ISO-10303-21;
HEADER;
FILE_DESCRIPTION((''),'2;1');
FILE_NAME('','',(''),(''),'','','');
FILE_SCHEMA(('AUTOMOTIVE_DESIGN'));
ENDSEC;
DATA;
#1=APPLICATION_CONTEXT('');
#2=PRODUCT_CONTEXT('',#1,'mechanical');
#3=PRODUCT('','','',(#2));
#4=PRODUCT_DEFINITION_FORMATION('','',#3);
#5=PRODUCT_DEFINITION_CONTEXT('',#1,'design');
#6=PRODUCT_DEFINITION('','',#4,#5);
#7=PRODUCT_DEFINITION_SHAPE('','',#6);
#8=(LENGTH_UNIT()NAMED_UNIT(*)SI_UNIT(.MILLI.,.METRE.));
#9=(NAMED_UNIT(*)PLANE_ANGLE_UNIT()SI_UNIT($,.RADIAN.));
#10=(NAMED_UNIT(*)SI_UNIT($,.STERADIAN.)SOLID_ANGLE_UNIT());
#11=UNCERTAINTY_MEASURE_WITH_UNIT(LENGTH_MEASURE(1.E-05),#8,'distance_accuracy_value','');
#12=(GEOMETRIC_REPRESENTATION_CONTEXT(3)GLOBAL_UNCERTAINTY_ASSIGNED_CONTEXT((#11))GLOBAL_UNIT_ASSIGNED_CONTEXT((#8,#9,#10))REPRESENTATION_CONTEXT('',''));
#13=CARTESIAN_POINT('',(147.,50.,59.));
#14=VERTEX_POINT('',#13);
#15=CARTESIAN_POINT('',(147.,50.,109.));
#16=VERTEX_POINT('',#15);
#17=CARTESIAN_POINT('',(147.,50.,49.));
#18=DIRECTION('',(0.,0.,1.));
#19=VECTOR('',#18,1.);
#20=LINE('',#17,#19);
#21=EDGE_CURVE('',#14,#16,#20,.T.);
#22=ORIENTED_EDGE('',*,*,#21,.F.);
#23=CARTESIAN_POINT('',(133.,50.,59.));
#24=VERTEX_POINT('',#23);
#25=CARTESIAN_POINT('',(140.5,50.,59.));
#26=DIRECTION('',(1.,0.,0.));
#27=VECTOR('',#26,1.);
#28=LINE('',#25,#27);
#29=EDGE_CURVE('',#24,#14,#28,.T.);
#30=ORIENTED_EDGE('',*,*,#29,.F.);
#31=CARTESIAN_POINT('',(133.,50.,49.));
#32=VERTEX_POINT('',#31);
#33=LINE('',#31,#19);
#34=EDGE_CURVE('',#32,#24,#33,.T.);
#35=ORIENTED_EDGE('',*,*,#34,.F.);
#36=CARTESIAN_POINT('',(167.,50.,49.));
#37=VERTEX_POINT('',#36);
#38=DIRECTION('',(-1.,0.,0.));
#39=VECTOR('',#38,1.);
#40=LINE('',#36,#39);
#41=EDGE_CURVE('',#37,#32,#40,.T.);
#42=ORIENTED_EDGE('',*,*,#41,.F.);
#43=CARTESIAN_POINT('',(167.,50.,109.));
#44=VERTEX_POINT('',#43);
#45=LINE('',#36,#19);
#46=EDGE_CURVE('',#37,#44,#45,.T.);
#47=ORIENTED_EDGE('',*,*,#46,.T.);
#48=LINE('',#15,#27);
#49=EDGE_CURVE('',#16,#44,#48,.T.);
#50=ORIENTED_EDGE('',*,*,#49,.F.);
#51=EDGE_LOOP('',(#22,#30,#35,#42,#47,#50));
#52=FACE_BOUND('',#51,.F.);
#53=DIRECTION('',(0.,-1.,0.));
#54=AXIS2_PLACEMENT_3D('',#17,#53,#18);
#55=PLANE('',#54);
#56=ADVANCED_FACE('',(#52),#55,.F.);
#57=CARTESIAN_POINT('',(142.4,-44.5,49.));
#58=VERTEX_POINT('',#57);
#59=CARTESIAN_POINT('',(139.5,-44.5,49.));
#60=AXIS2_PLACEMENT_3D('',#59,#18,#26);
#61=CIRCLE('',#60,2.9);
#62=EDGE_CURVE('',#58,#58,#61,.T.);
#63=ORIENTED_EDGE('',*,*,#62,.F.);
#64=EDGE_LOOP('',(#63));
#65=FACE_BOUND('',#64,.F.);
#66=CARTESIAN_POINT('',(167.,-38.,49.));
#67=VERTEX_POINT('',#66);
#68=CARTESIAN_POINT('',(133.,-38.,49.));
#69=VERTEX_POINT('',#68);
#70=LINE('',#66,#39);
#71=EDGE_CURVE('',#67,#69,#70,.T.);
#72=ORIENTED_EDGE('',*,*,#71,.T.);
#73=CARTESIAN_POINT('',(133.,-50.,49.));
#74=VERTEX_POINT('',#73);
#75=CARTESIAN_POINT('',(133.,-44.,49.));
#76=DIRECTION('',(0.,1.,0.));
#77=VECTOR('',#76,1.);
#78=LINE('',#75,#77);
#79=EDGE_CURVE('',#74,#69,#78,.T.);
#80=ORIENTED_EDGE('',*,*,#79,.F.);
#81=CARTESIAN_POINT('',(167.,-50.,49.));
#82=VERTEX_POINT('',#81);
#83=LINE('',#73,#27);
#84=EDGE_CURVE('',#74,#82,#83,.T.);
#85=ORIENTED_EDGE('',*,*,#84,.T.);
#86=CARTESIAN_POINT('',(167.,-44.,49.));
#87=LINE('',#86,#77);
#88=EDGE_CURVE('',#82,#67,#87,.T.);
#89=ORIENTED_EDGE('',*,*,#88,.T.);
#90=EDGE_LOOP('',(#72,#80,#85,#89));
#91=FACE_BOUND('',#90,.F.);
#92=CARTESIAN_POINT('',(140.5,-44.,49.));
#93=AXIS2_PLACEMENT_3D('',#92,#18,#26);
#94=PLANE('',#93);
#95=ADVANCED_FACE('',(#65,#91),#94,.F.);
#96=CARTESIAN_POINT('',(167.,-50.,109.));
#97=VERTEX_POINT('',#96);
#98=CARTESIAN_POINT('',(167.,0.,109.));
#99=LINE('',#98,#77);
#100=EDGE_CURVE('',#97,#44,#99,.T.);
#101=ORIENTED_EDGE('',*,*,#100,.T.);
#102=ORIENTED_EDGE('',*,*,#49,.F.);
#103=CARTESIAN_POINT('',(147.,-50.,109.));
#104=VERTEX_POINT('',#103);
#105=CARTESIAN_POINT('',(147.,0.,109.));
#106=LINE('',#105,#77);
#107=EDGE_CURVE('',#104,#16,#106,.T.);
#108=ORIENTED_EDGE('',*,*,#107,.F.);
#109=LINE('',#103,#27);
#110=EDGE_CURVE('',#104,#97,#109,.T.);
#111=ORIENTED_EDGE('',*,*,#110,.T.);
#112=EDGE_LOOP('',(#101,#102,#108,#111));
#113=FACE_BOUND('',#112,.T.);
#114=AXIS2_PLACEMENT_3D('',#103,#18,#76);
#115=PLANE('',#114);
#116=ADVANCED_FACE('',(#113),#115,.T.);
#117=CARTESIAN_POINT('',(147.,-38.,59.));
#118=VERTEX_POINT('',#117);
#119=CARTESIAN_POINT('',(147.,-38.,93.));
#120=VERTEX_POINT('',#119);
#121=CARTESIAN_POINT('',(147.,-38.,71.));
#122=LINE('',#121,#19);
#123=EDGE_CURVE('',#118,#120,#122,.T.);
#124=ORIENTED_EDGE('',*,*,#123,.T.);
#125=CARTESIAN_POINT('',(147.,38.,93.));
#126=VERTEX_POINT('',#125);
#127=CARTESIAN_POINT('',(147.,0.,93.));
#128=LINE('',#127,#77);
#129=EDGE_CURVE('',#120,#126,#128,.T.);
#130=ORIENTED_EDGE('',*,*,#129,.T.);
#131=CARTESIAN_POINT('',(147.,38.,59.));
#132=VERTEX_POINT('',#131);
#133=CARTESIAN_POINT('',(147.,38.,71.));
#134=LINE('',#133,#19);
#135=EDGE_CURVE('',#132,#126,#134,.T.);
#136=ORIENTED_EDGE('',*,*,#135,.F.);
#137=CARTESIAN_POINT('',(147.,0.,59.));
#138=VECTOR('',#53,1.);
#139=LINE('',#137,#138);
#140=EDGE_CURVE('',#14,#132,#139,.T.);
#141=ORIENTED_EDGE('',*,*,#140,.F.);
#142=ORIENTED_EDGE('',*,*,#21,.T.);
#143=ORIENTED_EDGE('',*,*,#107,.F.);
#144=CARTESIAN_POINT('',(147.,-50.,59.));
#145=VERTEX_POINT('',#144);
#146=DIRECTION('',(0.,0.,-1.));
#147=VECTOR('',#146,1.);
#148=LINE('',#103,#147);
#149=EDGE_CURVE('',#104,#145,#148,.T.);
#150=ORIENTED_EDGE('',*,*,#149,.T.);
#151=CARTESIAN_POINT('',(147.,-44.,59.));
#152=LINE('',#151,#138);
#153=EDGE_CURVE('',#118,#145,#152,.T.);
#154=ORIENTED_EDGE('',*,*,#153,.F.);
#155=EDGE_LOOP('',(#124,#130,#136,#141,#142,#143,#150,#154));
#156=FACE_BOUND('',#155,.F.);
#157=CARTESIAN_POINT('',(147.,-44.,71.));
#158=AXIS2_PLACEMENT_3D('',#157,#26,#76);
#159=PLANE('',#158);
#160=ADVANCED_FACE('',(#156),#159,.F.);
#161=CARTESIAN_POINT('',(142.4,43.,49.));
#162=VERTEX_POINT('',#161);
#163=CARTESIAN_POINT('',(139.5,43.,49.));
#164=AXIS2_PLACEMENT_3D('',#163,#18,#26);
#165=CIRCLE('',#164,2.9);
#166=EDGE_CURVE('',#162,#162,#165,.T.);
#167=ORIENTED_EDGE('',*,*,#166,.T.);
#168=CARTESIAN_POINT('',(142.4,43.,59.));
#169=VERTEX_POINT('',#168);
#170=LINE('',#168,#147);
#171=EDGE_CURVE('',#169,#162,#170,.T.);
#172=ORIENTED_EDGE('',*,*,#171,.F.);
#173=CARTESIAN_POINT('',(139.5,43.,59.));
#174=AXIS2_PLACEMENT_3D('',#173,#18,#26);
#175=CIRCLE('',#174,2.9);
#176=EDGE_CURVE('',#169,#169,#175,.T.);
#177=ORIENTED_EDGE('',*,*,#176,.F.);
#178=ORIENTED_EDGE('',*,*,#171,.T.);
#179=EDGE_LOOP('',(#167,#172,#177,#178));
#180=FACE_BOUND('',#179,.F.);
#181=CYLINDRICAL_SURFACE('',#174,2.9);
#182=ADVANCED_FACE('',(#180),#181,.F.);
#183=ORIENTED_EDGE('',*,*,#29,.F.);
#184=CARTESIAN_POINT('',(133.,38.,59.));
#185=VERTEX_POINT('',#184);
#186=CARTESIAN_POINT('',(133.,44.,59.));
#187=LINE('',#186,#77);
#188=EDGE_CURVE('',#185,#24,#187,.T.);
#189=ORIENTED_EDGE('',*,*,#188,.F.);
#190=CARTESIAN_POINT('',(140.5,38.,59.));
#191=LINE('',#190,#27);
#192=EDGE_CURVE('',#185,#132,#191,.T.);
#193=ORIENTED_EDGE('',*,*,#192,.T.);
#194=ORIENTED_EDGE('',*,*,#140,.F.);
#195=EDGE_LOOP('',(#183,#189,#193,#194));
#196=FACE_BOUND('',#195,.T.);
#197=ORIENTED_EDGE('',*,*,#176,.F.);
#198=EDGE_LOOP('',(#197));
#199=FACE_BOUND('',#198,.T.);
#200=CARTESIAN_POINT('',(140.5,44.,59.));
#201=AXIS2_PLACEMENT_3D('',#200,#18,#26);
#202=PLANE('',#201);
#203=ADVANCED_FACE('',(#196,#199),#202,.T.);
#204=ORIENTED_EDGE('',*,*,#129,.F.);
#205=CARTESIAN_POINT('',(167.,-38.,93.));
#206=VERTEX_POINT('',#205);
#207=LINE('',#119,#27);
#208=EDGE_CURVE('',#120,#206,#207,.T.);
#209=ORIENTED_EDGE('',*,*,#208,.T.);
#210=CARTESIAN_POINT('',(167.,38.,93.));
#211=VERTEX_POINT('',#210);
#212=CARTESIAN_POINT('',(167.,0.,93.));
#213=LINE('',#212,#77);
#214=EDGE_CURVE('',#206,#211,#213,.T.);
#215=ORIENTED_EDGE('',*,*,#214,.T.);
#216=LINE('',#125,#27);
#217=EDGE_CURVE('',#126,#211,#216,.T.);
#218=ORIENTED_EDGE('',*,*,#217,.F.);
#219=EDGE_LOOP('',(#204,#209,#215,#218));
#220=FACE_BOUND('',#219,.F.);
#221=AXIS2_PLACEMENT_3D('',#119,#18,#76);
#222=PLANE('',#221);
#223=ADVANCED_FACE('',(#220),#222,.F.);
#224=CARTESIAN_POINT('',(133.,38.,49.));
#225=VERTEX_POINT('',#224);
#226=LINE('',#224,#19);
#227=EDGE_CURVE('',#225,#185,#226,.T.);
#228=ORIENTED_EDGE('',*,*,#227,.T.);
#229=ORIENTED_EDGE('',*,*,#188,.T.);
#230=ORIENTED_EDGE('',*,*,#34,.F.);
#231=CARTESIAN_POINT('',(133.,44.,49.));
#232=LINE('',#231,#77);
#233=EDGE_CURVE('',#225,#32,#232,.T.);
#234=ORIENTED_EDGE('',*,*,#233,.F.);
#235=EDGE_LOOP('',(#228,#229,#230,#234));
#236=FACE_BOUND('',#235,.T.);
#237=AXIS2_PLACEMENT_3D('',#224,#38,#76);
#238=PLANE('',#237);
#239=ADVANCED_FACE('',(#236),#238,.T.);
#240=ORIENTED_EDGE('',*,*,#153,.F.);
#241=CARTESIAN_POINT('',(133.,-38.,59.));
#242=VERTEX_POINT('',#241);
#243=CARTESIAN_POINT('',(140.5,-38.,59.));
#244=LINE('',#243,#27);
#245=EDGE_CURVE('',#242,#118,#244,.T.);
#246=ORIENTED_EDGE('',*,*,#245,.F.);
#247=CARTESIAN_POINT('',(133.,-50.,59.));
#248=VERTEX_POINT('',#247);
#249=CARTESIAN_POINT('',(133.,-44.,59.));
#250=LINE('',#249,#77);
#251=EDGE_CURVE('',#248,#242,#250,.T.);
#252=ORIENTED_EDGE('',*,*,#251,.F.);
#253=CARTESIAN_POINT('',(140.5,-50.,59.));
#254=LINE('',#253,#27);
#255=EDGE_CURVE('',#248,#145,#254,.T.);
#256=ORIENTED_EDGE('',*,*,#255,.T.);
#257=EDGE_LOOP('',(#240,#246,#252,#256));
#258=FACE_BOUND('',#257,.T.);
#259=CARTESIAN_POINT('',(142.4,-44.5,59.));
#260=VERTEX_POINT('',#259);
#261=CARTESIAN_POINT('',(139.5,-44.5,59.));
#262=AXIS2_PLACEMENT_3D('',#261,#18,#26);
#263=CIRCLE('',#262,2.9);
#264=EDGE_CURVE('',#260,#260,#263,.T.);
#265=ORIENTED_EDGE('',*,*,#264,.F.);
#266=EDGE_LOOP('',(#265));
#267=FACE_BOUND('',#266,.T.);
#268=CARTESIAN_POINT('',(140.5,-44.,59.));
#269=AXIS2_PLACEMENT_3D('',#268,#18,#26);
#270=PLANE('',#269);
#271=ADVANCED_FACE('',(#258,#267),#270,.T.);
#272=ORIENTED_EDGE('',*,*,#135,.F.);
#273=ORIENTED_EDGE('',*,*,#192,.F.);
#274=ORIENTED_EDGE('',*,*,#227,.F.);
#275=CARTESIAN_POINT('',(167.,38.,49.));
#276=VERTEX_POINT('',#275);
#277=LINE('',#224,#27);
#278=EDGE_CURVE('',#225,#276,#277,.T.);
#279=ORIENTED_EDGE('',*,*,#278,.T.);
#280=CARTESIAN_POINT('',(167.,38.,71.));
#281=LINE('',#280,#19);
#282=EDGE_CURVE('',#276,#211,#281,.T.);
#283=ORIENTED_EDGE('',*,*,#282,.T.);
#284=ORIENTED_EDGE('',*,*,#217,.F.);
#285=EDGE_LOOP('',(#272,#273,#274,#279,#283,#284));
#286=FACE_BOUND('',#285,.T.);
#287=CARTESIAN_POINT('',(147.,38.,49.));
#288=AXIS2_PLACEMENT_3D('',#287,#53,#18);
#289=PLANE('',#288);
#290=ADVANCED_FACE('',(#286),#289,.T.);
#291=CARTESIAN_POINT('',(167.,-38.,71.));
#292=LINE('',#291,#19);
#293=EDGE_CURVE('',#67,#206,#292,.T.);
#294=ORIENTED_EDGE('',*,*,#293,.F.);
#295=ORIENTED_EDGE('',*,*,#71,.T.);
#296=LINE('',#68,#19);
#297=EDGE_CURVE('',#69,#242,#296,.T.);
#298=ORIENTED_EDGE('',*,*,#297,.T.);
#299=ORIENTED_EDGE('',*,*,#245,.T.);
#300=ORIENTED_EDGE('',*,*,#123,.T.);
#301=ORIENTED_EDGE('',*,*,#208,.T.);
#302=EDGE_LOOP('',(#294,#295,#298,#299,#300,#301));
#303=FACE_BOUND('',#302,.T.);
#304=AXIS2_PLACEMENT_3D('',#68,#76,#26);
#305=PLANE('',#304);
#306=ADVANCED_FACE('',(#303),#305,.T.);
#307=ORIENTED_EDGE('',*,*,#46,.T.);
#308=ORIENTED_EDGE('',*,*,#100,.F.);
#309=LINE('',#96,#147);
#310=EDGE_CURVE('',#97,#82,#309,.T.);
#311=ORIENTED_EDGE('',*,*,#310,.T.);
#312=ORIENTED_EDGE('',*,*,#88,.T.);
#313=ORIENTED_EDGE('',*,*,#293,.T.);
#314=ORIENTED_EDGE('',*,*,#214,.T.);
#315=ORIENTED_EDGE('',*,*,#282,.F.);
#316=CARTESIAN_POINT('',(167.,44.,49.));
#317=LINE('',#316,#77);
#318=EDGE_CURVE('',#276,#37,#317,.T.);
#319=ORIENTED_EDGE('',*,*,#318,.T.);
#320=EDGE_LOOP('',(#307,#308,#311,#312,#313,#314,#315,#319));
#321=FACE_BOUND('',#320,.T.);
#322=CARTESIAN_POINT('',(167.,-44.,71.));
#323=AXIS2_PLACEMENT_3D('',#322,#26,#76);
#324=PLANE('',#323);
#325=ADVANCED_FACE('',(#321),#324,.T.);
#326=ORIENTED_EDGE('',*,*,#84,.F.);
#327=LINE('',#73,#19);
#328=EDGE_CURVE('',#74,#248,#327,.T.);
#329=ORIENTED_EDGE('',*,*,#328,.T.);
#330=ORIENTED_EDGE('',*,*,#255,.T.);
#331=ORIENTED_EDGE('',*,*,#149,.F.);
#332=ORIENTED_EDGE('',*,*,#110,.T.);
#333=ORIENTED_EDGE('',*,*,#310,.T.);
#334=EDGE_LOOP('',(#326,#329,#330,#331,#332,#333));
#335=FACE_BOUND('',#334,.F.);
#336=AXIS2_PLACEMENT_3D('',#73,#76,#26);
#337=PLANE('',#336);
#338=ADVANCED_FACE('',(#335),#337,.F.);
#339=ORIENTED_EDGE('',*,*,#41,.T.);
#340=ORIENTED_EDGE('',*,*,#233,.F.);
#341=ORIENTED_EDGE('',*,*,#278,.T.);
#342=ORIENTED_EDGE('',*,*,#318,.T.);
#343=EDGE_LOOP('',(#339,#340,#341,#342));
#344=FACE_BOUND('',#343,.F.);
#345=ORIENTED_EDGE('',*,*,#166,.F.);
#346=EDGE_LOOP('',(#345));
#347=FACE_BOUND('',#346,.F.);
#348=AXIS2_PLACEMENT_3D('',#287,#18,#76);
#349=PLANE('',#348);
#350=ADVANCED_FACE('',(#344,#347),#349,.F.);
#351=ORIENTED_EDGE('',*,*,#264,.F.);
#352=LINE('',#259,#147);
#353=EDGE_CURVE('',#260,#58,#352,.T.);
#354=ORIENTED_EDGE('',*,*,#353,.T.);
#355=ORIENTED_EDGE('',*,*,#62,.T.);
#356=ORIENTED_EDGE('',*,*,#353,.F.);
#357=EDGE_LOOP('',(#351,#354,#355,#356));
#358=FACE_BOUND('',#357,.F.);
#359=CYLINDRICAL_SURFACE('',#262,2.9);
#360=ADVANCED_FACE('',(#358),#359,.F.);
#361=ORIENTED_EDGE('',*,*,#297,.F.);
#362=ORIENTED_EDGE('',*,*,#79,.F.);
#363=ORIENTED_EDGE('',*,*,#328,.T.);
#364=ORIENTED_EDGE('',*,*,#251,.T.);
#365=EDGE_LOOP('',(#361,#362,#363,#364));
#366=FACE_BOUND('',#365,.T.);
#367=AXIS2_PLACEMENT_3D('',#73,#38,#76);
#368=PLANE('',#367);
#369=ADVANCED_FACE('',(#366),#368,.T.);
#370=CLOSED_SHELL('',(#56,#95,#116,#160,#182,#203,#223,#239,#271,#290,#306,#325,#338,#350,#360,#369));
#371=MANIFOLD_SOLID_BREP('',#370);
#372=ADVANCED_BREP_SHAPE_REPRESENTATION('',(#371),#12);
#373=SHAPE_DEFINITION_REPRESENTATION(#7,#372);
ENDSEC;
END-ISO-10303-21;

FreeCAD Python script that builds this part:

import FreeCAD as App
import Part
import Sketcher
Q = App.Units.Quantity


def add_polygon(sketch, points):
    """Adds a closed chain of lines whose ends are joined by coincident constraints."""
    first, n = sketch.GeometryCount, len(points)
    for a, b in zip(points, points[1:] + points[:1]):
        sketch.addGeometry(Part.LineSegment(App.Vector(*a, 0), App.Vector(*b, 0)), False)
    for i in range(n):
        sketch.addConstraint(Sketcher.Constraint("Coincident", first + i, 2, first + (i + 1) % n, 1))

doc = App.newDocument("Part")
body = doc.addObject("PartDesign::Body", "Body")

# Sketch on YZ plane
sketch1 = body.newObject("Sketcher::SketchObject", "Sketch")
sketch1.AttachmentSupport = (doc.getObject("YZ_Plane"), [""])
sketch1.MapMode = "FlatFace"
add_polygon(sketch1, [(-48, 38), (-36, 38), (-36, 82), (40, 82), (40, 38), (52, 38), (52, 98), (-48, 98)])  # lines 0-7
sketch1.addConstraint([
    Sketcher.Constraint("Horizontal", 0),
    Sketcher.Constraint("Vertical", 1),
    Sketcher.Constraint("Horizontal", 2),
    Sketcher.Constraint("Vertical", 3),
    Sketcher.Constraint("Horizontal", 4),
    Sketcher.Constraint("Vertical", 5),
    Sketcher.Constraint("Horizontal", 6),
    Sketcher.Constraint("Vertical", 7),
    Sketcher.Constraint("Horizontal", 0, 2, 3, 2),
    Sketcher.Constraint("Equal", 0, 4),
    Sketcher.Constraint("DistanceX", 0, 1, 0, 2, Q("12 mm")),
    Sketcher.Constraint("DistanceX", 2, 1, 2, 2, Q("76 mm")),
    Sketcher.Constraint("DistanceY", 1, 1, 1, 2, Q("44 mm")),
    Sketcher.Constraint("DistanceY", 5, 1, 5, 2, Q("60 mm")),
    Sketcher.Constraint("DistanceX", 0, 2, -1, 1, Q("36 mm")),
    Sketcher.Constraint("DistanceY", -1, 1, 0, 2, Q("38 mm")),
])
pad1 = body.newObject("PartDesign::Pad", "Pad")
pad1.Profile = sketch1
pad1.Length = 20

# Sketch on XY plane
sketch2 = body.newObject("Sketcher::SketchObject", "Sketch001")
sketch2.AttachmentSupport = (doc.getObject("XY_Plane"), [""])
sketch2.MapMode = "FlatFace"
sketch2.AttachmentOffset = App.Placement(App.Vector(0, 0, 38), App.Rotation())
add_polygon(sketch2, [(-14, -36), (-14, -48), (1, -48), (1, -36)])  # lines 0-3
add_polygon(sketch2, [(-14, 52), (-14, 40), (1, 40), (1, 52)])  # lines 4-7
sketch2.addConstraint([
    Sketcher.Constraint("Vertical", 0),
    Sketcher.Constraint("Horizontal", 1),
    Sketcher.Constraint("Vertical", 2),
    Sketcher.Constraint("Horizontal", 3),
    Sketcher.Constraint("Vertical", 4),
    Sketcher.Constraint("Horizontal", 5),
    Sketcher.Constraint("Vertical", 6),
    Sketcher.Constraint("Horizontal", 7),
    Sketcher.Constraint("Vertical", 3, 2, 4, 2),
    Sketcher.Constraint("Vertical", 2, 2, 5, 2),
    Sketcher.Constraint("Equal", 2, 4),
    Sketcher.Constraint("DistanceX", 1, 1, 1, 2, Q("15 mm")),
    Sketcher.Constraint("DistanceY", 0, 2, 0, 1, Q("12 mm")),
    Sketcher.Constraint("DistanceX", 0, 2, -1, 1, Q("14 mm")),
    Sketcher.Constraint("DistanceY", 0, 2, -1, 1, Q("48 mm")),
    Sketcher.Constraint("DistanceY", -1, 1, 4, 2, Q("40 mm")),
])
pad2 = body.newObject("PartDesign::Pad", "Pad001")
pad2.Profile = sketch2
pad2.Length = 10

# Sketch on XY plane
sketch3 = body.newObject("Sketcher::SketchObject", "Sketch002")
sketch3.AttachmentSupport = (doc.getObject("XY_Plane"), [""])
sketch3.MapMode = "FlatFace"
sketch3.AttachmentOffset = App.Placement(App.Vector(0, 0, 48), App.Rotation())
sketch3.addGeometry([
    Part.Circle(App.Vector(-7.5, 45, 0), App.Vector(0, 0, 1), 2.9),
    Part.Circle(App.Vector(-7.5, -42.5, 0), App.Vector(0, 0, 1), 2.9),
], False)
sketch3.addConstraint([
    Sketcher.Constraint("Equal", 0, 1),
    Sketcher.Constraint("Vertical", 0, 3, 1, 3),
    Sketcher.Constraint("Diameter", 0, Q("5.8 mm")),
    Sketcher.Constraint("DistanceY", -1, 1, 0, 3, Q("45 mm")),
    Sketcher.Constraint("DistanceX", 0, 3, -1, 1, Q("7.5 mm")),
    Sketcher.Constraint("DistanceY", 1, 3, -1, 1, Q("42.5 mm")),
])
pocket1 = body.newObject("PartDesign::Pocket", "Pocket")
pocket1.Profile = sketch3
pocket1.Length = 25
body2 = doc.addObject("PartDesign::Body", "Body001")
doc.recompute()

body.Placement = App.Placement(App.Vector(147, -2, 11), App.Rotation(App.Vector(0, 0, 1), 0))
boolean = body2.newObject("PartDesign::Boolean", "Boolean")
boolean.Type = "Fuse"
boolean.addObjects([body])

doc.recompute()
